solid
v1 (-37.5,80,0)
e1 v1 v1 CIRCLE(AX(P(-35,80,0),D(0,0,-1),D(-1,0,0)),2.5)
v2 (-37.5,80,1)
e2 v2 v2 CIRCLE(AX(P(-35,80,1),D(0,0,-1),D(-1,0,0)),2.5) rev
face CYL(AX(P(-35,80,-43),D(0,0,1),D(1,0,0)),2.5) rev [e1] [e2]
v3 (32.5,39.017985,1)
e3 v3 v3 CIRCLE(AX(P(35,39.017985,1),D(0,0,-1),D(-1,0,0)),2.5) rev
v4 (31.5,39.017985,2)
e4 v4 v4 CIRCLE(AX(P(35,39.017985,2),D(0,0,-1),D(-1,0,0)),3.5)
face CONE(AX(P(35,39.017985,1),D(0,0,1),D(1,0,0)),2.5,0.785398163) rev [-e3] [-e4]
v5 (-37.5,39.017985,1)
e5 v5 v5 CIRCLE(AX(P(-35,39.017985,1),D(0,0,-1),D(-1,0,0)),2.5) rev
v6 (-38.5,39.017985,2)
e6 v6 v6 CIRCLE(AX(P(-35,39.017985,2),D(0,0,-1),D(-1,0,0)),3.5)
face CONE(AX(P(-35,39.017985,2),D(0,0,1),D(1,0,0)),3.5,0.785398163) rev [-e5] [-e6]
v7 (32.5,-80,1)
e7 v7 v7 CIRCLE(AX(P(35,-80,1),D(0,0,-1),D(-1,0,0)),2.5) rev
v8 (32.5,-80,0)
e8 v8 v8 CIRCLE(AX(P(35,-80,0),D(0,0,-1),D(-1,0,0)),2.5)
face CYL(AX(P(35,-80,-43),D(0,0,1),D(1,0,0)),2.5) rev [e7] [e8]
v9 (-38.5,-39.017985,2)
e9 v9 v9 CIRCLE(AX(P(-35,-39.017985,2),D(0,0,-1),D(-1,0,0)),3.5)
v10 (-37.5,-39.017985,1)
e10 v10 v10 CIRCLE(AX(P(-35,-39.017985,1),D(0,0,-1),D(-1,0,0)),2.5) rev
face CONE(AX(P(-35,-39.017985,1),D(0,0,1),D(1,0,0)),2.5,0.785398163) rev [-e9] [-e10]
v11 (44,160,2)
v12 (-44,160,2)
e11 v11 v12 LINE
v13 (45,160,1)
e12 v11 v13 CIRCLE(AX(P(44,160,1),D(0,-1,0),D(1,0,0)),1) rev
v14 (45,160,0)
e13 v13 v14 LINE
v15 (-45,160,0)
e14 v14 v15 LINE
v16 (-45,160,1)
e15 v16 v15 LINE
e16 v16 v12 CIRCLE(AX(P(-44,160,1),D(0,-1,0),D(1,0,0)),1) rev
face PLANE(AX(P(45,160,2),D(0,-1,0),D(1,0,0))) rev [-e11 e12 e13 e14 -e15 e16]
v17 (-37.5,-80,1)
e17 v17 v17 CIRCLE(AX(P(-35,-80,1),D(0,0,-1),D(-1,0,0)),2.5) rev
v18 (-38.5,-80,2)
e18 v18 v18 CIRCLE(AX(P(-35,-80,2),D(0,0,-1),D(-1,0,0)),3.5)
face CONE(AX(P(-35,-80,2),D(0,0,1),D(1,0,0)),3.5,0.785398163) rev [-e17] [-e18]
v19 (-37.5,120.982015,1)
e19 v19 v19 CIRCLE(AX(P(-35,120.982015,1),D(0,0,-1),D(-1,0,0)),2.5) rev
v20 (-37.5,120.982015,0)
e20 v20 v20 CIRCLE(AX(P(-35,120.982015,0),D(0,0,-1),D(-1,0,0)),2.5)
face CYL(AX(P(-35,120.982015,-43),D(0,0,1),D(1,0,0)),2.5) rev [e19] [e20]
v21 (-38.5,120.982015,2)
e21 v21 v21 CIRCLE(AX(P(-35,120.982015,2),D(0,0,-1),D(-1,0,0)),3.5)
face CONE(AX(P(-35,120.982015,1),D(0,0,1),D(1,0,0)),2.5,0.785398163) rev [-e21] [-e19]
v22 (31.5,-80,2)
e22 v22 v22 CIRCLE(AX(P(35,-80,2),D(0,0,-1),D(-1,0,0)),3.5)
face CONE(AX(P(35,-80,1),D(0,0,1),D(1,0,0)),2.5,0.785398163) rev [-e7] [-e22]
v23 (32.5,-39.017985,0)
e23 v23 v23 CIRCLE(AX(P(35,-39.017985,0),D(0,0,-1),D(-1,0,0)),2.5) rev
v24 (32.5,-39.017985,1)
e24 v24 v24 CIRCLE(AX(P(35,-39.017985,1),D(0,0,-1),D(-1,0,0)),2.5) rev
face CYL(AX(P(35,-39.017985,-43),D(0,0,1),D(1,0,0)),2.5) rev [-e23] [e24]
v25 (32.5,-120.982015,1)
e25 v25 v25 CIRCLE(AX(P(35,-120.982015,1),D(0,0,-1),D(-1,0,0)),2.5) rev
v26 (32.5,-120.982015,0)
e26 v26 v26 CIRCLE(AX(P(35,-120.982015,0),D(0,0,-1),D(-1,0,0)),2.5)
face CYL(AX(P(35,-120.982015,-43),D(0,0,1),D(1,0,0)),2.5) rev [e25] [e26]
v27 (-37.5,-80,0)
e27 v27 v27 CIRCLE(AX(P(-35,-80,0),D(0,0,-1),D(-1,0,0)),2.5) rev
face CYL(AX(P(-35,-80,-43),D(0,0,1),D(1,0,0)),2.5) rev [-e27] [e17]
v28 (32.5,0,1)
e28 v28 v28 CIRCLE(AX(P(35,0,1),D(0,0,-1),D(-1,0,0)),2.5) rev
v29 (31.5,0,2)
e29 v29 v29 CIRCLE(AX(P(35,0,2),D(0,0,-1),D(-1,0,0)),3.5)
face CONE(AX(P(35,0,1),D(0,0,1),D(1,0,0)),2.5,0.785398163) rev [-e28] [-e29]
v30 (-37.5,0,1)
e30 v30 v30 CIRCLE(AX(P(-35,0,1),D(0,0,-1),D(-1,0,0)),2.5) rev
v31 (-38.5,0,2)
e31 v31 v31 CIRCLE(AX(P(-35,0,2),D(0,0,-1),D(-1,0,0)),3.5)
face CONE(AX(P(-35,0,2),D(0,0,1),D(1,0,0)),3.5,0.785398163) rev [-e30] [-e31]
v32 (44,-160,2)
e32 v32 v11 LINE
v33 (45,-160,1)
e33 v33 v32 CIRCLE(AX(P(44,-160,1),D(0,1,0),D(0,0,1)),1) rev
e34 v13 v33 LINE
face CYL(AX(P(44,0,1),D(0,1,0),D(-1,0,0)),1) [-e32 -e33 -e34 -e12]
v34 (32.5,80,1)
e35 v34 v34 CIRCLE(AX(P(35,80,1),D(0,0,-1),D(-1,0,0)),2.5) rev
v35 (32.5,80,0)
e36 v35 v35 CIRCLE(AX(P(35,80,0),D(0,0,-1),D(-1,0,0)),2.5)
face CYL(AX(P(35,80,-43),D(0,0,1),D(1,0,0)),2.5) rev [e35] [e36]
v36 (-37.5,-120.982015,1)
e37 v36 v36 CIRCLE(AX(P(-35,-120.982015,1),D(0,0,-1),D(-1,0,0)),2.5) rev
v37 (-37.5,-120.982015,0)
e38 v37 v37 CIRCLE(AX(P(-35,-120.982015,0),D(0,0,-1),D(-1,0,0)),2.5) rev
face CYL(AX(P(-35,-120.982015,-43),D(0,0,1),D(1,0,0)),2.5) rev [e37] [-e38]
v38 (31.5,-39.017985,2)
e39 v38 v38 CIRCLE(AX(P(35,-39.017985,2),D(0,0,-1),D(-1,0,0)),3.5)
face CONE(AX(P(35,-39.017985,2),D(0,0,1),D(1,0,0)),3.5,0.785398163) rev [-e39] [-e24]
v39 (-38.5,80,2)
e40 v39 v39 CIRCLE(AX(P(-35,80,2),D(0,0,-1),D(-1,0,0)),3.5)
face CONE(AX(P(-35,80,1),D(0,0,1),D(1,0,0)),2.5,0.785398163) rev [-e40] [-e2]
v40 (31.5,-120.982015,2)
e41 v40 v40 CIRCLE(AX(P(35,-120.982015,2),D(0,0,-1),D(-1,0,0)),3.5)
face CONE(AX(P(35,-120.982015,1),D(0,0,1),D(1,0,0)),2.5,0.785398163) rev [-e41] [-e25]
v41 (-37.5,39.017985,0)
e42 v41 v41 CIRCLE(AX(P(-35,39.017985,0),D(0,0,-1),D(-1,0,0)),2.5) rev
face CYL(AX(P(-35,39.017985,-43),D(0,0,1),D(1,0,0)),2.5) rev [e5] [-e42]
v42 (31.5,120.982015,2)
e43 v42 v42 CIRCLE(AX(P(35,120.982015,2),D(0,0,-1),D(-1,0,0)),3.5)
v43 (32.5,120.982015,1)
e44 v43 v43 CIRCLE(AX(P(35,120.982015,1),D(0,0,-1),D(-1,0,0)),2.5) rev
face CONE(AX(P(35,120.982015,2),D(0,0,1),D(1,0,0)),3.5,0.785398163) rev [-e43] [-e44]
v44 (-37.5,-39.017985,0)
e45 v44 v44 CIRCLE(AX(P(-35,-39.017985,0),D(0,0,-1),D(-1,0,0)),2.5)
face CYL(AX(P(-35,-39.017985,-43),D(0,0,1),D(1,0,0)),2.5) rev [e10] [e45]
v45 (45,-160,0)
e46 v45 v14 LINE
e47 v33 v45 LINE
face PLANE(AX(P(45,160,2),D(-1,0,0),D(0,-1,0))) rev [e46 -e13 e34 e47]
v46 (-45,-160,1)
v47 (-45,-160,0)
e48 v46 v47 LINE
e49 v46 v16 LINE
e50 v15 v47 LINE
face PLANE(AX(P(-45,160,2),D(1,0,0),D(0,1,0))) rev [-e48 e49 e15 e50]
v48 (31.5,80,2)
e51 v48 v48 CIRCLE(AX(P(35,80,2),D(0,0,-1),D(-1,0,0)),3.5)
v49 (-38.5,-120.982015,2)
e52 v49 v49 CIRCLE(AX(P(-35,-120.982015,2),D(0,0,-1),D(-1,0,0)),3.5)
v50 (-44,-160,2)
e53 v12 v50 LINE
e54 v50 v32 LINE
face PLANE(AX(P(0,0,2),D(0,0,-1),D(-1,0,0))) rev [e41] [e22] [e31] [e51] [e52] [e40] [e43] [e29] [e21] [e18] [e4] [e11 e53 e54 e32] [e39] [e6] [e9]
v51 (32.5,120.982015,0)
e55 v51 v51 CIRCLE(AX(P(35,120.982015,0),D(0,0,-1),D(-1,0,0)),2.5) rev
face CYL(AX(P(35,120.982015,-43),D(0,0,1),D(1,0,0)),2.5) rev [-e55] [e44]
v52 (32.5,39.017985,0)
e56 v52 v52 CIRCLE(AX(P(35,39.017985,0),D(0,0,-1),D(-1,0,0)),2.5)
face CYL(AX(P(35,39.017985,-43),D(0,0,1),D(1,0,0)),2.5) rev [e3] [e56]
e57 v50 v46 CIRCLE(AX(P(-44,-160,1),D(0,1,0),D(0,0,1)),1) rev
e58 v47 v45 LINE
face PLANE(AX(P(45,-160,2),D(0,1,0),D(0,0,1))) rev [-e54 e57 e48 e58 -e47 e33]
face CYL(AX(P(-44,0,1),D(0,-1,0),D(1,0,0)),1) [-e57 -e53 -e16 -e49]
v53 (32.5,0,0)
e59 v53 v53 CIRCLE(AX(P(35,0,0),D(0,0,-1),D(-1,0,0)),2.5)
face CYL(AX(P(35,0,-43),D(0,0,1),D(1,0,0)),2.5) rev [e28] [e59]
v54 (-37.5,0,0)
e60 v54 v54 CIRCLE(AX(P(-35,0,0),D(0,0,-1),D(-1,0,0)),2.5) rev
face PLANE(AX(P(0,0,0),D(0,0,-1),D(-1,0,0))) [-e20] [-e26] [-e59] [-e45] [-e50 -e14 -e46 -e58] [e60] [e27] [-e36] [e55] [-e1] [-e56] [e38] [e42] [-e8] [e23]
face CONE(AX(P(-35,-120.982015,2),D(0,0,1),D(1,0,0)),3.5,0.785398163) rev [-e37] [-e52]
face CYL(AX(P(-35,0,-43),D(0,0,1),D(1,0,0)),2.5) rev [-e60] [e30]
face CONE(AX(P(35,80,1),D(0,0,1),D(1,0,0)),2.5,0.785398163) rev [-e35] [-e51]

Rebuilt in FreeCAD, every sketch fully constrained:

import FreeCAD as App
import Part
import Sketcher
from FreeCAD import Vector


def edges_at(feature, points):
    """Names of the edges that pass closest to the given points."""
    edges = feature.Shape.Edges
    near = lambda p: min(range(len(edges)), key=lambda i: edges[i].distToShape(Part.Vertex(*p))[0])
    return sorted({f"Edge{near(p) + 1}" for p in points})

doc = App.newDocument("Part")
body = doc.addObject("PartDesign::Body", "Body")

sketch1 = body.newObject("Sketcher::SketchObject", "Sketch")
sketch1.AttachmentSupport = (doc.getObject("XY_Plane"), [""])
sketch1.MapMode = "FlatFace"
sketch1.addGeometry([
    Part.LineSegment(Vector(-45, 160, 0), Vector(-45, -160, 0)),
    Part.LineSegment(Vector(-45, -160, 0), Vector(45, -160, 0)),
    Part.LineSegment(Vector(45, -160, 0), Vector(45, 160, 0)),
    Part.LineSegment(Vector(45, 160, 0), Vector(-45, 160, 0)),
], False)
sketch1.addConstraint([
    Sketcher.Constraint("Coincident", 0, 2, 1, 1),
    Sketcher.Constraint("Coincident", 1, 2, 2, 1),
    Sketcher.Constraint("Coincident", 2, 2, 3, 1),
    Sketcher.Constraint("Coincident", 3, 2, 0, 1),
    Sketcher.Constraint("Vertical", 0),
    Sketcher.Constraint("Horizontal", 1),
    Sketcher.Constraint("Vertical", 2),
    Sketcher.Constraint("Horizontal", 3),
    Sketcher.Constraint("Symmetric", 0, 2, 2, 2, -1, 1),
    Sketcher.Constraint("DistanceX", 1, 1, 1, 2, 90.0),
    Sketcher.Constraint("DistanceY", 0, 2, 0, 1, 320.0),
])
pad1 = body.newObject("PartDesign::Pad", "Pad")
pad1.Profile = sketch1
pad1.Length = 2

sketch2 = body.newObject("Sketcher::SketchObject", "Sketch001")
sketch2.AttachmentSupport = (doc.getObject("XY_Plane"), [""])
sketch2.MapMode = "FlatFace"
sketch2.AttachmentOffset = App.Placement(Vector(0, 0, 2), App.Rotation())
sketch2.addGeometry([
    Part.Circle(Vector(-35, 121, 0), Vector(0, 0, 1), 2.5),
    Part.Circle(Vector(35, 121, 0), Vector(0, 0, 1), 2.5),
    Part.Circle(Vector(35, 80, 0), Vector(0, 0, 1), 2.5),
    Part.Circle(Vector(-35, 80, 0), Vector(0, 0, 1), 2.5),
    Part.Circle(Vector(-35, 39, 0), Vector(0, 0, 1), 2.5),
    Part.Circle(Vector(35, 39, 0), Vector(0, 0, 1), 2.5),
    Part.Circle(Vector(35, 0, 0), Vector(0, 0, 1), 2.5),
    Part.Circle(Vector(-35, 0, 0), Vector(0, 0, 1), 2.5),
    Part.Circle(Vector(-35, -39, 0), Vector(0, 0, 1), 2.5),
    Part.Circle(Vector(35, -39, 0), Vector(0, 0, 1), 2.5),
    Part.Circle(Vector(35, -80, 0), Vector(0, 0, 1), 2.5),
    Part.Circle(Vector(-35, -80, 0), Vector(0, 0, 1), 2.5),
    Part.Circle(Vector(35, -121, 0), Vector(0, 0, 1), 2.5),
    Part.Circle(Vector(-35, -121, 0), Vector(0, 0, 1), 2.5),
], False)
sketch2.addConstraint([
    Sketcher.Constraint("Equal", 0, 1),
    Sketcher.Constraint("Equal", 1, 2),
    Sketcher.Constraint("Equal", 2, 3),
    Sketcher.Constraint("Equal", 3, 4),
    Sketcher.Constraint("Equal", 4, 5),
    Sketcher.Constraint("Equal", 5, 6),
    Sketcher.Constraint("Equal", 6, 7),
    Sketcher.Constraint("Equal", 7, 8),
    Sketcher.Constraint("Equal", 8, 9),
    Sketcher.Constraint("Equal", 9, 10),
    Sketcher.Constraint("Equal", 10, 11),
    Sketcher.Constraint("Equal", 11, 12),
    Sketcher.Constraint("Equal", 12, 13),
    Sketcher.Constraint("Symmetric", 6, 3, 7, 3, -1, 1),
    Sketcher.Constraint("Symmetric", 5, 3, 8, 3, -1, 1),
    Sketcher.Constraint("Symmetric", 4, 3, 9, 3, -1, 1),
    Sketcher.Constraint("Symmetric", 3, 3, 10, 3, -1, 1),
    Sketcher.Constraint("Symmetric", 2, 3, 11, 3, -1, 1),
    Sketcher.Constraint("Symmetric", 0, 3, 12, 3, -1, 1),
    Sketcher.Constraint("Symmetric", 1, 3, 13, 3, -1, 1),
    Sketcher.Constraint("Symmetric", 0, 3, 1, 3, -2),
    Sketcher.Constraint("Symmetric", 2, 3, 3, 3, -2),
    Sketcher.Constraint("Symmetric", 4, 3, 5, 3, -2),
    Sketcher.Constraint("PointOnObject", 6, 3, -1),
    Sketcher.Constraint("Vertical", 1, 3, 2, 3),
    Sketcher.Constraint("Vertical", 3, 3, 4, 3),
    Sketcher.Constraint("Vertical", 5, 3, 6, 3),
    Sketcher.Constraint("Diameter", 0, 5.0),
    Sketcher.Constraint("DistanceX", 0, 3, -1, 1, 35.0),
    Sketcher.Constraint("DistanceY", -1, 1, 2, 3, 80.0),
    Sketcher.Constraint("DistanceY", 4, 3, 0, 3, 81.964029),
    Sketcher.Constraint("DistanceY", 8, 3, 4, 3, 78.035971),
])
pocket1 = body.newObject("PartDesign::Pocket", "Pocket")
pocket1.Profile = sketch2
pocket1.Length = 45
doc.recompute()

fillet = body.newObject("PartDesign::Fillet", "Fillet")
fillet.Base = (pocket1, edges_at(pocket1, [(45, 0, 2), (-45, 0, 2)]))
fillet.Radius = 1
doc.recompute()

chamfer = body.newObject("PartDesign::Chamfer", "Chamfer")
chamfer.Base = (fillet, edges_at(fillet, [
    (-37.5, -39.018, 2),
    (-37.5, 0, 2),
    (32.5, 0, 2),
    (32.5, 39.018, 2),
    (-37.5, 39.018, 2),
    (-37.5, 80, 2),
    (32.5, 80, 2),
    (32.5, 120.982, 2),
    (-37.5, -120.982, 2),
    (32.5, -39.018, 2),
    (32.5, -80, 2),
    (-37.5, -80, 2),
    (32.5, -120.982, 2),
    (-37.5, 120.982, 2),
]))
chamfer.Size = 1

doc.recompute()
